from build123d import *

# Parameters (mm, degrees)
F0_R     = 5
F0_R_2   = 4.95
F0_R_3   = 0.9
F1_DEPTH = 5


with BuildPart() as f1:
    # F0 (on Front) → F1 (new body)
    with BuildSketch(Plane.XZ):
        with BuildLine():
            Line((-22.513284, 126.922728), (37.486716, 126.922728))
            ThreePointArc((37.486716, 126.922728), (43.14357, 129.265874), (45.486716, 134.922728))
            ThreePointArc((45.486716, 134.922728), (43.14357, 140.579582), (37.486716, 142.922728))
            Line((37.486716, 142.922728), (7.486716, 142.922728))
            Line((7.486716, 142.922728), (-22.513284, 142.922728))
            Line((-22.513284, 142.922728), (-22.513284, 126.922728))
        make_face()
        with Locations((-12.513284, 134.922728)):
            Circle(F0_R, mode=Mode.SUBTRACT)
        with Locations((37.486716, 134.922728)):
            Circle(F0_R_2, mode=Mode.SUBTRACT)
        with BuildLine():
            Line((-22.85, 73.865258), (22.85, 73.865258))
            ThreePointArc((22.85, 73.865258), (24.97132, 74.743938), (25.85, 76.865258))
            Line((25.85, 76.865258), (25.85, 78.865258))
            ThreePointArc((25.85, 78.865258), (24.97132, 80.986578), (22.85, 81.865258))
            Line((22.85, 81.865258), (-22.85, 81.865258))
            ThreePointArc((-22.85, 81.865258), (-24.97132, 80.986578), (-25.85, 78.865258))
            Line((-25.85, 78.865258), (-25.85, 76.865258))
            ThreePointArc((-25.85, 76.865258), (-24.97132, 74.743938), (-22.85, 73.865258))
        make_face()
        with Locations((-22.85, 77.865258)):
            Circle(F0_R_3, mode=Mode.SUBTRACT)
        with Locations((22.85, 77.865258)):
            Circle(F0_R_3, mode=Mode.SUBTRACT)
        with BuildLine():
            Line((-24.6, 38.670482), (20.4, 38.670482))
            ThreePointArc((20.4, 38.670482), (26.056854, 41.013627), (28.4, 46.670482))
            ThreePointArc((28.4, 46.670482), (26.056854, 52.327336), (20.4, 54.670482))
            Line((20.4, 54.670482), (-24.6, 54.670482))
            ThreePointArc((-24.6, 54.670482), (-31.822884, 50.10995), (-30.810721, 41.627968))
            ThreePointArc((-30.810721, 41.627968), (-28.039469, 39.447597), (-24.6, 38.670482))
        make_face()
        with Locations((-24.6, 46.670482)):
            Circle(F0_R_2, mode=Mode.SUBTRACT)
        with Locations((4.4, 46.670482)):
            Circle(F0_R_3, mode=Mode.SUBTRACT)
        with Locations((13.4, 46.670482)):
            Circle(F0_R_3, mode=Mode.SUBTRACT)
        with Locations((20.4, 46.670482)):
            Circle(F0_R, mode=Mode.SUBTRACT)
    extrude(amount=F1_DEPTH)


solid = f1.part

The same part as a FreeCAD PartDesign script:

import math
import FreeCAD as App
import Part
import Sketcher

V = App.Vector
Q = App.Units.Quantity

doc = App.newDocument("Part")
body = doc.addObject("PartDesign::Body", "Body")
body.AllowCompound = True

# Sketch on XZ plane
sketch1 = doc.addObject("Sketcher::SketchObject", "Sketch")
body.addObject(sketch1)
sketch1.AttachmentSupport = (doc.XZ_Plane, [""])
sketch1.MapMode = "FlatFace"
sketch1.addGeometry(Part.LineSegment(V(-22.5, 126.9, 0), V(37.5, 126.9, 0)), False)
sketch1.addGeometry(Part.ArcOfCircle(Part.Circle(V(37.5, 134.9, 0), V(0, 0, 1), 8), math.radians(-90), math.radians(0)), False)
sketch1.addGeometry(Part.ArcOfCircle(Part.Circle(V(37.5, 134.9, 0), V(0, 0, 1), 8), math.radians(0), math.radians(90)), False)
sketch1.addGeometry(Part.LineSegment(V(37.5, 142.9, 0), V(-22.5, 142.9, 0)), False)
sketch1.addGeometry(Part.LineSegment(V(-22.5, 142.9, 0), V(-22.5, 126.9, 0)), False)
sketch1.addGeometry(Part.Circle(V(-12.5, 134.9, 0), V(0, 0, 1), 5), False)
sketch1.addGeometry(Part.Circle(V(37.5, 134.9, 0), V(0, 0, 1), 5), False)
sketch1.addGeometry(Part.LineSegment(V(-22.9, 73.9, 0), V(22.9, 73.9, 0)), False)
sketch1.addGeometry(Part.ArcOfCircle(Part.Circle(V(22.8, 76.9, 0), V(0, 0, 1), 3), math.radians(-90), math.radians(0)), False)
sketch1.addGeometry(Part.LineSegment(V(25.9, 76.9, 0), V(25.9, 78.9, 0)), False)
sketch1.addGeometry(Part.ArcOfCircle(Part.Circle(V(22.8, 78.9, 0), V(0, 0, 1), 3), math.radians(0), math.radians(90)), False)
sketch1.addGeometry(Part.LineSegment(V(22.9, 81.9, 0), V(-22.9, 81.9, 0)), False)
sketch1.addGeometry(Part.ArcOfCircle(Part.Circle(V(-22.8, 78.9, 0), V(0, 0, 1), 3), math.radians(90), math.radians(180)), False)
sketch1.addGeometry(Part.LineSegment(V(-25.9, 78.9, 0), V(-25.9, 76.9, 0)), False)
sketch1.addGeometry(Part.ArcOfCircle(Part.Circle(V(-22.8, 76.9, 0), V(0, 0, 1), 3), math.radians(-180), math.radians(-90)), False)
sketch1.addGeometry(Part.Circle(V(-22.9, 77.9, 0), V(0, 0, 1), 0.9), False)
sketch1.addGeometry(Part.Circle(V(22.9, 77.9, 0), V(0, 0, 1), 0.9), False)
sketch1.addGeometry(Part.LineSegment(V(-24.6, 38.7, 0), V(20.4, 38.7, 0)), False)
sketch1.addGeometry(Part.ArcOfCircle(Part.Circle(V(20.4, 46.7, 0), V(0, 0, 1), 8), math.radians(-90), math.radians(0)), False)
sketch1.addGeometry(Part.ArcOfCircle(Part.Circle(V(20.4, 46.7, 0), V(0, 0, 1), 8), math.radians(0), math.radians(90)), False)
sketch1.addGeometry(Part.LineSegment(V(20.4, 54.7, 0), V(-24.6, 54.7, 0)), False)
sketch1.addGeometry(Part.ArcOfCircle(Part.Circle(V(-24.6, 46.7, 0), V(0, 0, 1), 8), math.radians(90), math.radians(219)), False)
sketch1.addGeometry(Part.ArcOfCircle(Part.Circle(V(-24.6, 46.7, 0), V(0, 0, 1), 8), math.radians(-141), math.radians(-90)), False)
sketch1.addGeometry(Part.Circle(V(-24.6, 46.7, 0), V(0, 0, 1), 5), False)
sketch1.addGeometry(Part.Circle(V(4.4, 46.7, 0), V(0, 0, 1), 0.9), False)
sketch1.addGeometry(Part.Circle(V(13.4, 46.7, 0), V(0, 0, 1), 0.9), False)
sketch1.addGeometry(Part.Circle(V(20.4, 46.7, 0), V(0, 0, 1), 5), False)
sketch1.addConstraint(Sketcher.Constraint("Tangent", 0, 2, 1, 1))
sketch1.addConstraint(Sketcher.Constraint("Tangent", 1, 2, 2, 1))
sketch1.addConstraint(Sketcher.Constraint("Tangent", 2, 2, 3, 1))
sketch1.addConstraint(Sketcher.Constraint("Coincident", 3, 2, 4, 1))
sketch1.addConstraint(Sketcher.Constraint("Coincident", 4, 2, 0, 1))
sketch1.addConstraint(Sketcher.Constraint("Tangent", 7, 2, 8, 1))
sketch1.addConstraint(Sketcher.Constraint("Tangent", 8, 2, 9, 1))
sketch1.addConstraint(Sketcher.Constraint("Tangent", 9, 2, 10, 1))
sketch1.addConstraint(Sketcher.Constraint("Tangent", 10, 2, 11, 1))
sketch1.addConstraint(Sketcher.Constraint("Tangent", 11, 2, 12, 1))
sketch1.addConstraint(Sketcher.Constraint("Tangent", 12, 2, 13, 1))
sketch1.addConstraint(Sketcher.Constraint("Tangent", 13, 2, 14, 1))
sketch1.addConstraint(Sketcher.Constraint("Tangent", 14, 2, 7, 1))
sketch1.addConstraint(Sketcher.Constraint("Tangent", 17, 2, 18, 1))
sketch1.addConstraint(Sketcher.Constraint("Tangent", 18, 2, 19, 1))
sketch1.addConstraint(Sketcher.Constraint("Tangent", 19, 2, 20, 1))
sketch1.addConstraint(Sketcher.Constraint("Tangent", 20, 2, 21, 1))
sketch1.addConstraint(Sketcher.Constraint("Tangent", 21, 2, 22, 1))
sketch1.addConstraint(Sketcher.Constraint("Tangent", 22, 2, 17, 1))
sketch1.addConstraint(Sketcher.Constraint("Horizontal", 0))
sketch1.addConstraint(Sketcher.Constraint("Horizontal", 3))
sketch1.addConstraint(Sketcher.Constraint("Vertical", 4))
sketch1.addConstraint(Sketcher.Constraint("Horizontal", 7))
sketch1.addConstraint(Sketcher.Constraint("Vertical", 9))
sketch1.addConstraint(Sketcher.Constraint("Horizontal", 11))
sketch1.addConstraint(Sketcher.Constraint("Vertical", 13))
sketch1.addConstraint(Sketcher.Constraint("Horizontal", 17))
sketch1.addConstraint(Sketcher.Constraint("Horizontal", 20))
sketch1.addConstraint(Sketcher.Constraint("Coincident", 6, 3, 1, 3))
sketch1.addConstraint(Sketcher.Constraint("Coincident", 23, 3, 21, 3))
sketch1.addConstraint(Sketcher.Constraint("Coincident", 26, 3, 18, 3))
sketch1.addConstraint(Sketcher.Constraint("Equal", 1, 2))
sketch1.addConstraint(Sketcher.Constraint("Equal", 8, 10))
sketch1.addConstraint(Sketcher.Constraint("Equal", 10, 12))
sketch1.addConstraint(Sketcher.Constraint("Equal", 12, 14))
sketch1.addConstraint(Sketcher.Constraint("Equal", 15, 16))
sketch1.addConstraint(Sketcher.Constraint("Equal", 2, 18))
sketch1.addConstraint(Sketcher.Constraint("Equal", 18, 19))
sketch1.addConstraint(Sketcher.Constraint("Equal", 19, 21))
sketch1.addConstraint(Sketcher.Constraint("Equal", 6, 23))
sketch1.addConstraint(Sketcher.Constraint("Equal", 16, 24))
sketch1.addConstraint(Sketcher.Constraint("Equal", 24, 25))
sketch1.addConstraint(Sketcher.Constraint("Equal", 5, 26))
sketch1.addConstraint(Sketcher.Constraint("Symmetric", 15, 3, 16, 3, -2))
sketch1.addConstraint(Sketcher.Constraint("Horizontal", 2, 3, 5, 3))
sketch1.addConstraint(Sketcher.Constraint("Horizontal", 23, 3, 24, 3))
sketch1.addConstraint(Sketcher.Constraint("Horizontal", 24, 3, 25, 3))
sketch1.addConstraint(Sketcher.Constraint("Horizontal", 6, 3, 1, 2))
sketch1.addConstraint(Sketcher.Constraint("Horizontal", 26, 3, 18, 2))
sketch1.addConstraint(Sketcher.Constraint("Vertical", 14, 3, 15, 3))
sketch1.addConstraint(Sketcher.Constraint("Vertical", 10, 3, 16, 3))
sketch1.addConstraint(Sketcher.Constraint("Diameter", 5, Q("10 mm")))
sketch1.addConstraint(Sketcher.Constraint("Radius", 1, Q("8.000001 mm")))
sketch1.addConstraint(Sketcher.Constraint("Radius", 8, Q("3.000001 mm")))
sketch1.addConstraint(Sketcher.Constraint("Diameter", 6, Q("9.9 mm")))
sketch1.addConstraint(Sketcher.Constraint("Diameter", 15, Q("1.8 mm")))
sketch1.addConstraint(Sketcher.Constraint("DistanceX", 0, 1, 0, 2, Q("60 mm")))
sketch1.addConstraint(Sketcher.Constraint("DistanceX", 17, 1, 17, 2, Q("45 mm")))
sketch1.addConstraint(Sketcher.Constraint("DistanceY", 9, 1, 9, 2, Q("2 mm")))
sketch1.addConstraint(Sketcher.Constraint("DistanceX", 7, 1, 7, 2, Q("45.7 mm")))
sketch1.addConstraint(Sketcher.Constraint("DistanceX", 5, 3, 1, 3, Q("49.999999 mm")))
sketch1.addConstraint(Sketcher.Constraint("DistanceY", 15, 3, 12, 3, Q("0.999999 mm")))
sketch1.addConstraint(Sketcher.Constraint("DistanceX", 24, 3, 19, 3, Q("15.999999 mm")))
sketch1.addConstraint(Sketcher.Constraint("DistanceX", 25, 3, 19, 3, Q("6.999999 mm")))
sketch1.addConstraint(Sketcher.Constraint("DistanceX", -1, 1, 18, 3, Q("20.400001 mm")))
sketch1.addConstraint(Sketcher.Constraint("DistanceY", -1, 1, 1, 3, Q("134.922729 mm")))
sketch1.addConstraint(Sketcher.Constraint("DistanceY", -1, 1, 8, 3, Q("76.865259 mm")))
sketch1.addConstraint(Sketcher.Constraint("DistanceY", -1, 1, 18, 3, Q("46.670481 mm")))
sketch1.addConstraint(Sketcher.Constraint("DistanceX", 21, 2, -1, 1, Q("30.810721 mm")))
sketch1.addConstraint(Sketcher.Constraint("DistanceX", -1, 1, 1, 3, Q("37.486715 mm")))
pad1 = doc.addObject("PartDesign::Pad", "Pad")
body.addObject(pad1)
pad1.Profile = sketch1
pad1.Length = 5

doc.recompute()
